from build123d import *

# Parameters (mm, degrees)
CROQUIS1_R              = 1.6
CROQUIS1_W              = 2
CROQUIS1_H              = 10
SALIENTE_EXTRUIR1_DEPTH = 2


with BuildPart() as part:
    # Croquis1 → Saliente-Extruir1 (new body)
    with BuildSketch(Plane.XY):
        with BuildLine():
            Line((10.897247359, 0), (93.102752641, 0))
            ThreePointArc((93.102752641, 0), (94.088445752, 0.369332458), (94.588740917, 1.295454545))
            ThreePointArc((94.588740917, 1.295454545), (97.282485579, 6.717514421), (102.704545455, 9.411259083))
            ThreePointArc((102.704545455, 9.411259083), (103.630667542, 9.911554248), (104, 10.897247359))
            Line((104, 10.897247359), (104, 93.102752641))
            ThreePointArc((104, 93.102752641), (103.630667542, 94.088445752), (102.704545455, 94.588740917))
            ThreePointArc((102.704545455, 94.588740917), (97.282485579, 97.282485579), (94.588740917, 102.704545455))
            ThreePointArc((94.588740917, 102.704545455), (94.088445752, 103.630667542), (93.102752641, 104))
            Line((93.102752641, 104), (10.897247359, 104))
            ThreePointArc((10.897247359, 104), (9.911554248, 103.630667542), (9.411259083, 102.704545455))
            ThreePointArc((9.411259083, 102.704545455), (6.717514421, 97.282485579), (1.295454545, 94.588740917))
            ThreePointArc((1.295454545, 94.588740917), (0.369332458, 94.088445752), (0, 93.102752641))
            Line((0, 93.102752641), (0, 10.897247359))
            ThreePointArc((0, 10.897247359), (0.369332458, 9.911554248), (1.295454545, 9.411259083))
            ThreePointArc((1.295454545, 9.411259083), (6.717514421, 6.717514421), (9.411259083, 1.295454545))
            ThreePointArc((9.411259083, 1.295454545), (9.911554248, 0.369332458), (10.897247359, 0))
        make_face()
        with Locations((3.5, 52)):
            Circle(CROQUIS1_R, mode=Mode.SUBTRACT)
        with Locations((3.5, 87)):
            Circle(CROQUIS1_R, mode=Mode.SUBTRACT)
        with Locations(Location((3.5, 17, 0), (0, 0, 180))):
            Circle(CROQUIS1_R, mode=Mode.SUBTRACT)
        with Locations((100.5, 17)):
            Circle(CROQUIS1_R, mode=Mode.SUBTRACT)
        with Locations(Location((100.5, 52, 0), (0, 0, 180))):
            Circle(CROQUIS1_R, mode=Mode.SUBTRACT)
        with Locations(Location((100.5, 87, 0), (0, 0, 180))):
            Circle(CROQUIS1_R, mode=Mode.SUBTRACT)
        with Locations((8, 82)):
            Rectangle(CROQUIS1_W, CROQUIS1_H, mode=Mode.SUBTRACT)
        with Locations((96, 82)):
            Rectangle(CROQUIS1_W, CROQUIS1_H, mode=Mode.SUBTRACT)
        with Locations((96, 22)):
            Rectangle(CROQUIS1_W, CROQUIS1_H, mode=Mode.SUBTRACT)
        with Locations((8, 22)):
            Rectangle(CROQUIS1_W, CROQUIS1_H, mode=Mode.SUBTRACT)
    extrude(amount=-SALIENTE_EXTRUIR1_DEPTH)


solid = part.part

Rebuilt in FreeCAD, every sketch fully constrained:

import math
import FreeCAD as App
import Part
import Sketcher

V = App.Vector
Q = App.Units.Quantity


def add_polygon(sketch, points):
    """Adds a closed chain of lines whose ends are joined by coincident constraints."""
    first, n = sketch.GeometryCount, len(points)
    for a, b in zip(points, points[1:] + points[:1]):
        sketch.addGeometry(Part.LineSegment(App.Vector(*a, 0), App.Vector(*b, 0)), False)
    for i in range(n):
        sketch.addConstraint(Sketcher.Constraint("Coincident", first + i, 2, first + (i + 1) % n, 1))

doc = App.newDocument("Part")
params = doc.addObject("Spreadsheet::Sheet", "Params")
for row, (alias, value) in enumerate([
    ("sketch1_diameter", "3.2 mm"),
    ("sketch1_radius", "1.5 mm"),
    ("sketch1_radius2", "9.5 mm"),
    ("sketch1_width", "2 mm"),
    ("sketch1_height", "10 mm"),
    ("pad1_length", "2 mm"),
], start=1):
    params.set(f"A{row}", alias)
    params.set(f"B{row}", "=" + value)
    params.setAlias(f"B{row}", alias)

body = doc.addObject("PartDesign::Body", "Body")

# Sketch on XY plane
sketch1 = doc.addObject("Sketcher::SketchObject", "Sketch")
body.addObject(sketch1)
sketch1.AttachmentSupport = (doc.XY_Plane, [""])
sketch1.MapMode = "FlatFace"
sketch1.addGeometry(Part.LineSegment(V(10.9, 0, 0), V(93.1, 0, 0)), False)  # 0
sketch1.addGeometry(Part.ArcOfCircle(Part.Circle(V(93.1, 1.5, 0), V(0, 0, 1), 1.5), math.radians(-90), math.radians(-8)), False)  # 1
sketch1.addGeometry(Part.ArcOfCircle(Part.Circle(V(104, 0, 0), V(0, 0, 1), 9.5), math.radians(98), math.radians(172)), False)  # 2
sketch1.addGeometry(Part.ArcOfCircle(Part.Circle(V(102.5, 10.9, 0), V(0, 0, 1), 1.5), math.radians(-82), math.radians(0)), False)  # 3
sketch1.addGeometry(Part.LineSegment(V(104, 10.9, 0), V(104, 93.1, 0)), False)  # 4
sketch1.addGeometry(Part.ArcOfCircle(Part.Circle(V(102.5, 93.1, 0), V(0, 0, 1), 1.5), math.radians(0), math.radians(82)), False)  # 5
sketch1.addGeometry(Part.ArcOfCircle(Part.Circle(V(104, 104, 0), V(0, 0, 1), 9.5), math.radians(-172), math.radians(-98)), False)  # 6
sketch1.addGeometry(Part.ArcOfCircle(Part.Circle(V(93.1, 102.5, 0), V(0, 0, 1), 1.5), math.radians(8), math.radians(90)), False)  # 7
sketch1.addGeometry(Part.LineSegment(V(93.1, 104, 0), V(10.9, 104, 0)), False)  # 8
sketch1.addGeometry(Part.ArcOfCircle(Part.Circle(V(10.9, 102.5, 0), V(0, 0, 1), 1.5), math.radians(90), math.radians(172)), False)  # 9
sketch1.addGeometry(Part.ArcOfCircle(Part.Circle(V(0, 104, 0), V(0, 0, 1), 9.5), math.radians(-82), math.radians(-8)), False)  # 10
sketch1.addGeometry(Part.ArcOfCircle(Part.Circle(V(1.5, 93.1, 0), V(0, 0, 1), 1.5), math.radians(98), math.radians(180)), False)  # 11
sketch1.addGeometry(Part.LineSegment(V(0, 93.1, 0), V(0, 10.9, 0)), False)  # 12
sketch1.addGeometry(Part.ArcOfCircle(Part.Circle(V(1.5, 10.9, 0), V(0, 0, 1), 1.5), math.radians(180), math.radians(262)), False)  # 13
sketch1.addGeometry(Part.ArcOfCircle(Part.Circle(V(0, 0, 0), V(0, 0, 1), 9.5), math.radians(8), math.radians(82)), False)  # 14
sketch1.addGeometry(Part.ArcOfCircle(Part.Circle(V(10.9, 1.5, 0), V(0, 0, 1), 1.5), math.radians(-172), math.radians(-90)), False)  # 15
sketch1.addGeometry(Part.Circle(V(3.5, 17, 0), V(0, 0, 1), 1.6), False)  # 16
add_polygon(sketch1, [(9, 17), (7, 17), (7, 27), (9, 27)])  # lines 17-20
sketch1.addGeometry(Part.Circle(V(100.5, 17, 0), V(0, 0, 1), 1.6), False)  # 21
add_polygon(sketch1, [(97, 17), (95, 17), (95, 27), (97, 27)])  # lines 22-25
sketch1.addGeometry(Part.Circle(V(3.5, 52, 0), V(0, 0, 1), 1.6), False)  # 26
add_polygon(sketch1, [(9, 77), (7, 77), (7, 87), (9, 87)])  # lines 27-30
sketch1.addGeometry(Part.Circle(V(3.5, 87, 0), V(0, 0, 1), 1.6), False)  # 31
sketch1.addGeometry(Part.Circle(V(100.5, 52, 0), V(0, 0, 1), 1.6), False)  # 32
add_polygon(sketch1, [(97, 77), (95, 77), (95, 87), (97, 87)])  # lines 33-36
sketch1.addGeometry(Part.Circle(V(100.5, 87, 0), V(0, 0, 1), 1.6), False)  # 37
sketch1.addConstraint([
    Sketcher.Constraint("Tangent", 0, 2, 1, 1),
    Sketcher.Constraint("Tangent", 1, 2, 2, 2),
    Sketcher.Constraint("Tangent", 2, 1, 3, 1),
    Sketcher.Constraint("Tangent", 3, 2, 4, 1),
    Sketcher.Constraint("Tangent", 4, 2, 5, 1),
    Sketcher.Constraint("Tangent", 5, 2, 6, 2),
    Sketcher.Constraint("Tangent", 6, 1, 7, 1),
    Sketcher.Constraint("Tangent", 7, 2, 8, 1),
    Sketcher.Constraint("Tangent", 8, 2, 9, 1),
    Sketcher.Constraint("Tangent", 9, 2, 10, 2),
    Sketcher.Constraint("Tangent", 10, 1, 11, 1),
    Sketcher.Constraint("Tangent", 11, 2, 12, 1),
    Sketcher.Constraint("Tangent", 12, 2, 13, 1),
    Sketcher.Constraint("Tangent", 13, 2, 14, 2),
    Sketcher.Constraint("Tangent", 14, 1, 15, 1),
    Sketcher.Constraint("Tangent", 15, 2, 0, 1),
    Sketcher.Constraint("Horizontal", 0),
    Sketcher.Constraint("Vertical", 4),
    Sketcher.Constraint("Horizontal", 8),
    Sketcher.Constraint("Vertical", 12),
    Sketcher.Constraint("Horizontal", 17),
    Sketcher.Constraint("Vertical", 18),
    Sketcher.Constraint("Horizontal", 19),
    Sketcher.Constraint("Vertical", 20),
    Sketcher.Constraint("Horizontal", 22),
    Sketcher.Constraint("Vertical", 23),
    Sketcher.Constraint("Horizontal", 24),
    Sketcher.Constraint("Vertical", 25),
    Sketcher.Constraint("Horizontal", 27),
    Sketcher.Constraint("Vertical", 28),
    Sketcher.Constraint("Horizontal", 29),
    Sketcher.Constraint("Vertical", 30),
    Sketcher.Constraint("Horizontal", 33),
    Sketcher.Constraint("Vertical", 34),
    Sketcher.Constraint("Horizontal", 35),
    Sketcher.Constraint("Vertical", 36),
    Sketcher.Constraint("Coincident", 14, 3, -1, 1),
    Sketcher.Constraint("Equal", 1, 3),
    Sketcher.Constraint("Equal", 3, 5),
    Sketcher.Constraint("Equal", 2, 6),
    Sketcher.Constraint("Equal", 5, 7),
    Sketcher.Constraint("Equal", 7, 9),
    Sketcher.Constraint("Equal", 6, 10),
    Sketcher.Constraint("Equal", 9, 11),
    Sketcher.Constraint("Equal", 11, 13),
    Sketcher.Constraint("Equal", 10, 14),
    Sketcher.Constraint("Equal", 13, 15),
    Sketcher.Constraint("Equal", 16, 21),
    Sketcher.Constraint("Equal", 21, 26),
    Sketcher.Constraint("Equal", 26, 31),
    Sketcher.Constraint("Equal", 31, 32),
    Sketcher.Constraint("Equal", 32, 37),
    Sketcher.Constraint("PointOnObject", 2, 3, -1),
    Sketcher.Constraint("PointOnObject", 10, 3, -2),
    Sketcher.Constraint("PointOnObject", 0, 2, -1),
    Sketcher.Constraint("PointOnObject", 11, 2, -2),
    Sketcher.Constraint("Horizontal", 6, 3, 10, 3),
    Sketcher.Constraint("Horizontal", 5, 3, 11, 3),
    Sketcher.Constraint("Horizontal", 3, 3, 13, 3),
    Sketcher.Constraint("Horizontal", 16, 3, 21, 3),
    Sketcher.Constraint("Horizontal", 26, 3, 32, 3),
    Sketcher.Constraint("Horizontal", 31, 3, 37, 3),
    Sketcher.Constraint("Horizontal", 10, 3, 7, 2),
    Sketcher.Constraint("Horizontal", 21, 3, 17, 2),
    Sketcher.Constraint("Horizontal", 20, 2, 22, 2),
    Sketcher.Constraint("Horizontal", 19, 2, 23, 2),
    Sketcher.Constraint("Horizontal", 37, 3, 28, 2),
    Sketcher.Constraint("Horizontal", 30, 2, 33, 2),
    Sketcher.Constraint("Horizontal", 29, 2, 34, 2),
    Sketcher.Constraint("Vertical", 16, 3, 26, 3),
    Sketcher.Constraint("Vertical", 26, 3, 31, 3),
    Sketcher.Constraint("Vertical", 21, 3, 32, 3),
    Sketcher.Constraint("Vertical", 32, 3, 37, 3),
    Sketcher.Constraint("Vertical", 18, 2, 27, 2),
    Sketcher.Constraint("Vertical", 20, 2, 29, 2),
    Sketcher.Constraint("Vertical", 23, 2, 33, 2),
    Sketcher.Constraint("Vertical", 25, 2, 35, 2),
    Sketcher.Constraint("Equal", 19, 22),
    Sketcher.Constraint("Equal", 8, 4),
    Sketcher.Constraint("Equal", 25, 28),
    Sketcher.Constraint("Diameter", 16, Q("3.2 mm")),
    Sketcher.Constraint("Radius", 1, Q("1.5 mm")),
    Sketcher.Constraint("Radius", 2, Q("9.5 mm")),
    Sketcher.Constraint("DistanceX", 17, 2, 17, 1, Q("2 mm")),
    Sketcher.Constraint("DistanceY", 18, 1, 18, 2, Q("10 mm")),
    Sketcher.Constraint("DistanceX", -1, 1, 2, 3, Q("104 mm")),
    Sketcher.Constraint("DistanceY", -1, 1, 16, 3, Q("17 mm")),
    Sketcher.Constraint("DistanceY", -1, 1, 26, 3, Q("52 mm")),
    Sketcher.Constraint("DistanceY", -1, 1, 31, 3, Q("87 mm")),
    Sketcher.Constraint("DistanceX", -1, 1, 17, 2, Q("7 mm")),
    Sketcher.Constraint("DistanceX", -1, 1, 22, 2, Q("95 mm")),
    Sketcher.Constraint("DistanceX", 13, 3, 16, 3, Q("2 mm")),
    Sketcher.Constraint("DistanceX", 21, 3, 3, 3, Q("2 mm")),
])
sketch1.setExpression("Constraints[96]", "Params.sketch1_diameter")
sketch1.setExpression("Constraints[97]", "Params.sketch1_radius")
sketch1.setExpression("Constraints[98]", "Params.sketch1_radius2")
sketch1.setExpression("Constraints[99]", "Params.sketch1_width")
sketch1.setExpression("Constraints[100]", "Params.sketch1_height")
pad1 = doc.addObject("PartDesign::Pad", "Pad")
body.addObject(pad1)
pad1.Profile = sketch1
pad1.setExpression("Length", "Params.pad1_length")
pad1.Reversed = True

doc.recompute()
